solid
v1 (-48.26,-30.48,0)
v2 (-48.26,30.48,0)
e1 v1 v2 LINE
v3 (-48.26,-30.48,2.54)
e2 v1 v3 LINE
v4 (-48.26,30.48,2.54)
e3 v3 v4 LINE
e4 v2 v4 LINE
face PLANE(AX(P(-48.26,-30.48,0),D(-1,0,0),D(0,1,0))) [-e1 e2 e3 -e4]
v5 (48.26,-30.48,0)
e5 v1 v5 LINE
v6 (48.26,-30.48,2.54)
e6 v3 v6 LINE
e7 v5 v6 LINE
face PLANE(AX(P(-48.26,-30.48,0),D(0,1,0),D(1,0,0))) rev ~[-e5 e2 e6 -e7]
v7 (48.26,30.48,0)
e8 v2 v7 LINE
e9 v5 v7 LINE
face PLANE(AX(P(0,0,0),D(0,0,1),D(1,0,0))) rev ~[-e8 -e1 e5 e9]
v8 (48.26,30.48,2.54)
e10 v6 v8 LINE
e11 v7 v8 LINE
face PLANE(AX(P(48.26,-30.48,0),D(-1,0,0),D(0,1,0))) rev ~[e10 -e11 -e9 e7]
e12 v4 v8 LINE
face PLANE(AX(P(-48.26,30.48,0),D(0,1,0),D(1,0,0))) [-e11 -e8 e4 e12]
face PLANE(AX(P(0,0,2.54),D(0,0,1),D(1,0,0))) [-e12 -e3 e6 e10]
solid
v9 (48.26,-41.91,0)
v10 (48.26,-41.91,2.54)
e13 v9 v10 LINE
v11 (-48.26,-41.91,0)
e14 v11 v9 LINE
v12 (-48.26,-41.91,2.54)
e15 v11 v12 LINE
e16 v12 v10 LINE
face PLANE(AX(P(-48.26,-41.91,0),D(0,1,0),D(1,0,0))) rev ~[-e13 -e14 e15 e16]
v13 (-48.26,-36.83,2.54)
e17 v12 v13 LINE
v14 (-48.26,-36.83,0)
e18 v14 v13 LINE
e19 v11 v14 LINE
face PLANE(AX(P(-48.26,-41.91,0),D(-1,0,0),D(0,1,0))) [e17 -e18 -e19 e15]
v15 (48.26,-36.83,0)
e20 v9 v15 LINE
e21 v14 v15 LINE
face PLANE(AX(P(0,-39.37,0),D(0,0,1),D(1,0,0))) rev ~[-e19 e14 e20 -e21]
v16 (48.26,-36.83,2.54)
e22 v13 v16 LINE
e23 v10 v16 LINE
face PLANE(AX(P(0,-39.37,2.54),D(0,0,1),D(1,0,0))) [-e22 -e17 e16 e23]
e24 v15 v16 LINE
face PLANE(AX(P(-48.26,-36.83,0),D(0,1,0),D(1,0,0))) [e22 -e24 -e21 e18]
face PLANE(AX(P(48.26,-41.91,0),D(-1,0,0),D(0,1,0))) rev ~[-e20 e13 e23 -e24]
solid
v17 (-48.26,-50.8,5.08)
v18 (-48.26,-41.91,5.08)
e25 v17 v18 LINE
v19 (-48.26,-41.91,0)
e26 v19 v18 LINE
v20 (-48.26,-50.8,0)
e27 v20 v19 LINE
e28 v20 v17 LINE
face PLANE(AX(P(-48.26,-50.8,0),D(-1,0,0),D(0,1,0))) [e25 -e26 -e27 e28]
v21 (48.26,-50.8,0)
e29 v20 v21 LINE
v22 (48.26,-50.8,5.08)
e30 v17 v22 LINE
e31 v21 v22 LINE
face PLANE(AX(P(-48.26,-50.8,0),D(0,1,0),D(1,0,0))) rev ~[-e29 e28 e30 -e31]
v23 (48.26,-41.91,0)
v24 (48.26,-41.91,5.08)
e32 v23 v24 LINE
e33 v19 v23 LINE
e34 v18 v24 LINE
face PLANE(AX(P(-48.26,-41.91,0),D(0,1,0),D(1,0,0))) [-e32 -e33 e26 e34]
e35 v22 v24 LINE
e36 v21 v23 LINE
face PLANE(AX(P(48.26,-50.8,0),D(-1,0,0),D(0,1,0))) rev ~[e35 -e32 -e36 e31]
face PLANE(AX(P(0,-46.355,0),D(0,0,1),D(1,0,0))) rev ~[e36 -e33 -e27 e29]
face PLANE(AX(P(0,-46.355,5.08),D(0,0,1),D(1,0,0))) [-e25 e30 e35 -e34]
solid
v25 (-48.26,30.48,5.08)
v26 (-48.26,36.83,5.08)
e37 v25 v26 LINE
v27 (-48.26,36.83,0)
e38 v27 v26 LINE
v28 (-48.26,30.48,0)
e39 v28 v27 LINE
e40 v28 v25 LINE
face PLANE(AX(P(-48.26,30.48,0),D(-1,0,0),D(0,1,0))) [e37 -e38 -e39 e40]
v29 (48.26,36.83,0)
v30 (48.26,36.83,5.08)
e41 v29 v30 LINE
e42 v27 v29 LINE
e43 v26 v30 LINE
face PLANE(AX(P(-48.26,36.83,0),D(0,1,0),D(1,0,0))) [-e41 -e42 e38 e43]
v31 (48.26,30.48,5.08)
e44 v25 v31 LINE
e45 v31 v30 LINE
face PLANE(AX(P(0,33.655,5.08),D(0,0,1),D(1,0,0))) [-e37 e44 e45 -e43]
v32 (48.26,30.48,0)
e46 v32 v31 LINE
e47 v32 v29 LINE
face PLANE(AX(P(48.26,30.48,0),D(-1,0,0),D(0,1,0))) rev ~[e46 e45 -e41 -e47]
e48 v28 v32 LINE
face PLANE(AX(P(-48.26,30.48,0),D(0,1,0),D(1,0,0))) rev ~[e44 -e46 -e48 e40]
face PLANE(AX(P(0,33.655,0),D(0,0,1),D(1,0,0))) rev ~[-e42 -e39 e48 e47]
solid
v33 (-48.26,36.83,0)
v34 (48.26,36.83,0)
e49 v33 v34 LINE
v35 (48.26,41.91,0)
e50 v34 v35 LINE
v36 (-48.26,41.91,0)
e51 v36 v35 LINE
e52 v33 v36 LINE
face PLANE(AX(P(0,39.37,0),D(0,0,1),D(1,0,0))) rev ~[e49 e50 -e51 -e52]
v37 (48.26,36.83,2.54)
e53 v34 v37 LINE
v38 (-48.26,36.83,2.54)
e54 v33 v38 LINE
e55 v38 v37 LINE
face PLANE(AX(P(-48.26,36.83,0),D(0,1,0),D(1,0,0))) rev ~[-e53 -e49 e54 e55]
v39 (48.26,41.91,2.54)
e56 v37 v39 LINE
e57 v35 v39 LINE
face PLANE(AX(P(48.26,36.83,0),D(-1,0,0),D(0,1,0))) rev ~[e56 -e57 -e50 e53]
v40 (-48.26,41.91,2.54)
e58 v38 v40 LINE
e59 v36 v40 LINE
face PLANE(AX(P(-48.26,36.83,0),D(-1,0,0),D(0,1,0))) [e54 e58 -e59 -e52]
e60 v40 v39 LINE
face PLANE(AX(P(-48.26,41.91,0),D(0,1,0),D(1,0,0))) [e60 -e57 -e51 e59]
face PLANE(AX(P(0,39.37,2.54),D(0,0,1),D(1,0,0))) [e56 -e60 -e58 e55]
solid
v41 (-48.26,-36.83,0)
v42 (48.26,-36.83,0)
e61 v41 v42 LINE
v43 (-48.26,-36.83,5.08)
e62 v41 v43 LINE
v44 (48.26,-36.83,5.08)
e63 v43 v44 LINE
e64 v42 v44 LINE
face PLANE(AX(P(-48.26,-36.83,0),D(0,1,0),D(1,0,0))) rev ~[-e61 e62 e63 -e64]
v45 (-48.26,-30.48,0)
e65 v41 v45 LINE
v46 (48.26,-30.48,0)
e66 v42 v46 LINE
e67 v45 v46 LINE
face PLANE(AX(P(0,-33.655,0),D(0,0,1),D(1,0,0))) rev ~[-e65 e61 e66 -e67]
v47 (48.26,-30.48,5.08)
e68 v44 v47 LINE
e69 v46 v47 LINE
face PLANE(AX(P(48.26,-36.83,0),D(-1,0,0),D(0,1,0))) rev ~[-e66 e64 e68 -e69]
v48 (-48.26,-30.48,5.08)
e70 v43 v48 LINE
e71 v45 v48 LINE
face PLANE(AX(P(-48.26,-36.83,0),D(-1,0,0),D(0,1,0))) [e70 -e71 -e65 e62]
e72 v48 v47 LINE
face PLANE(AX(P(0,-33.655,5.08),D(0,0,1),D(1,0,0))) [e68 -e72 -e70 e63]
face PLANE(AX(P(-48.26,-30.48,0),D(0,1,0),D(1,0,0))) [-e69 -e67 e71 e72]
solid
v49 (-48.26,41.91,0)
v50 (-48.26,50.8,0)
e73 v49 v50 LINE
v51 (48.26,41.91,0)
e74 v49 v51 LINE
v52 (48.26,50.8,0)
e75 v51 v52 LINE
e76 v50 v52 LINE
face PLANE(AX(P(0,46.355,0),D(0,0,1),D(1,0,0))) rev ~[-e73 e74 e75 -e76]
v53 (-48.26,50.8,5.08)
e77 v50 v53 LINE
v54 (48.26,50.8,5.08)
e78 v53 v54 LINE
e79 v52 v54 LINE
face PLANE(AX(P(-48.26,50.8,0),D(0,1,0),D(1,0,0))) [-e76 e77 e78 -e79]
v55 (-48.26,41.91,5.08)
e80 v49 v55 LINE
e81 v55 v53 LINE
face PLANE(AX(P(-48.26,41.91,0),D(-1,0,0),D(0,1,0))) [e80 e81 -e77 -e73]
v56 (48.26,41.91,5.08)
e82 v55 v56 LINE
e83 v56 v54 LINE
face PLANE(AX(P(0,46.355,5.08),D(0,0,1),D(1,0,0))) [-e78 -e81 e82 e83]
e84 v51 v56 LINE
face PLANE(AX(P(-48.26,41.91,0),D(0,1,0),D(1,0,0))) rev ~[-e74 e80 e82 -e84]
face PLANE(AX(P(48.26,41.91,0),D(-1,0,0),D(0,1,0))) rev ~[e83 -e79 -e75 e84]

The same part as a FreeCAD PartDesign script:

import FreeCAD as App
import Part
import Sketcher
from FreeCAD import Vector
Q = App.Units.Quantity

doc = App.newDocument("Part")
body = doc.addObject("PartDesign::Body", "Body")
body.AllowCompound = True

# Sketch on XY plane
sketch1 = body.newObject("Sketcher::SketchObject", "Sketch")
sketch1.AttachmentSupport = (doc.getObject("XY_Plane"), [""])
sketch1.MapMode = "FlatFace"
sketch1.addGeometry([
    Part.LineSegment(Vector(-48, 51, 0), Vector(-48, 42, 0)),  # 0
    Part.LineSegment(Vector(-48, 42, 0), Vector(48, 42, 0)),  # 1
    Part.LineSegment(Vector(48, 42, 0), Vector(48, 51, 0)),  # 2
    Part.LineSegment(Vector(48, 51, 0), Vector(-48, 51, 0)),  # 3
    Part.LineSegment(Vector(-48, 37, 0), Vector(-48, 30, 0)),  # 4
    Part.LineSegment(Vector(-48, 30, 0), Vector(48, 30, 0)),  # 5
    Part.LineSegment(Vector(48, 30, 0), Vector(48, 37, 0)),  # 6
    Part.LineSegment(Vector(48, 37, 0), Vector(-48, 37, 0)),  # 7
    Part.LineSegment(Vector(-48, -42, 0), Vector(-48, -51, 0)),  # 8
    Part.LineSegment(Vector(-48, -51, 0), Vector(48, -51, 0)),  # 9
    Part.LineSegment(Vector(48, -51, 0), Vector(48, -42, 0)),  # 10
    Part.LineSegment(Vector(48, -42, 0), Vector(-48, -42, 0)),  # 11
    Part.LineSegment(Vector(-48, -30, 0), Vector(-48, -37, 0)),  # 12
    Part.LineSegment(Vector(-48, -37, 0), Vector(48, -37, 0)),  # 13
    Part.LineSegment(Vector(48, -37, 0), Vector(48, -30, 0)),  # 14
    Part.LineSegment(Vector(48, -30, 0), Vector(-48, -30, 0)),  # 15
], False)
sketch1.addConstraint([
    Sketcher.Constraint("Coincident", 0, 2, 1, 1),
    Sketcher.Constraint("Coincident", 1, 2, 2, 1),
    Sketcher.Constraint("Coincident", 2, 2, 3, 1),
    Sketcher.Constraint("Coincident", 3, 2, 0, 1),
    Sketcher.Constraint("Coincident", 4, 2, 5, 1),
    Sketcher.Constraint("Coincident", 5, 2, 6, 1),
    Sketcher.Constraint("Coincident", 6, 2, 7, 1),
    Sketcher.Constraint("Coincident", 7, 2, 4, 1),
    Sketcher.Constraint("Coincident", 8, 2, 9, 1),
    Sketcher.Constraint("Coincident", 9, 2, 10, 1),
    Sketcher.Constraint("Coincident", 10, 2, 11, 1),
    Sketcher.Constraint("Coincident", 11, 2, 8, 1),
    Sketcher.Constraint("Coincident", 12, 2, 13, 1),
    Sketcher.Constraint("Coincident", 13, 2, 14, 1),
    Sketcher.Constraint("Coincident", 14, 2, 15, 1),
    Sketcher.Constraint("Coincident", 15, 2, 12, 1),
    Sketcher.Constraint("Vertical", 0),
    Sketcher.Constraint("Horizontal", 1),
    Sketcher.Constraint("Vertical", 2),
    Sketcher.Constraint("Horizontal", 3),
    Sketcher.Constraint("Vertical", 4),
    Sketcher.Constraint("Horizontal", 5),
    Sketcher.Constraint("Vertical", 6),
    Sketcher.Constraint("Horizontal", 7),
    Sketcher.Constraint("Vertical", 8),
    Sketcher.Constraint("Horizontal", 9),
    Sketcher.Constraint("Vertical", 10),
    Sketcher.Constraint("Horizontal", 11),
    Sketcher.Constraint("Vertical", 12),
    Sketcher.Constraint("Horizontal", 13),
    Sketcher.Constraint("Vertical", 14),
    Sketcher.Constraint("Horizontal", 15),
    Sketcher.Constraint("Symmetric", 2, 2, 8, 2, -1, 1),
    Sketcher.Constraint("Symmetric", 0, 2, 10, 2, -1, 1),
    Sketcher.Constraint("Symmetric", 6, 2, 12, 2, -1, 1),
    Sketcher.Constraint("Symmetric", 4, 2, 14, 2, -1, 1),
    Sketcher.Constraint("Vertical", 3, 2, 4, 2),
    Sketcher.Constraint("Vertical", 2, 2, 5, 2),
    Sketcher.Constraint("Vertical", 7, 2, 8, 2),
    Sketcher.Constraint("DistanceX", 1, 1, 1, 2, Q("3.8 in")),
    Sketcher.Constraint("DistanceY", -1, 1, 2, 2, Q("2 in")),
    Sketcher.Constraint("DistanceY", 0, 2, 0, 1, Q("0.35 in")),
    Sketcher.Constraint("DistanceY", 4, 2, 4, 1, Q("0.25 in")),
    Sketcher.Constraint("DistanceY", -1, 1, 4, 2, Q("1.2 in")),
])
pad1 = body.newObject("PartDesign::Pad", "Pad")
pad1.Profile = sketch1
pad1.Length = Q("0.2 in")
body2 = doc.addObject("PartDesign::Body", "Body001")
body2.AllowCompound = True

# Sketch on XY plane
sketch2 = body2.newObject("Sketcher::SketchObject", "Sketch001")
sketch2.AttachmentSupport = (doc.getObject("XY_Plane001"), [""])
sketch2.MapMode = "FlatFace"
sketch2.addGeometry([
    Part.LineSegment(Vector(-48, 42, 0), Vector(-48, 37, 0)),  # 0
    Part.LineSegment(Vector(-48, 37, 0), Vector(48, 37, 0)),  # 1
    Part.LineSegment(Vector(48, 37, 0), Vector(48, 42, 0)),  # 2
    Part.LineSegment(Vector(48, 42, 0), Vector(-48, 42, 0)),  # 3
    Part.LineSegment(Vector(-48, -37, 0), Vector(-48, -42, 0)),  # 4
    Part.LineSegment(Vector(-48, -42, 0), Vector(48, -42, 0)),  # 5
    Part.LineSegment(Vector(48, -42, 0), Vector(48, -37, 0)),  # 6
    Part.LineSegment(Vector(48, -37, 0), Vector(-48, -37, 0)),  # 7
    Part.LineSegment(Vector(-48, 30, 0), Vector(-48, -30, 0)),  # 8
    Part.LineSegment(Vector(-48, -30, 0), Vector(48, -30, 0)),  # 9
    Part.LineSegment(Vector(48, -30, 0), Vector(48, 30, 0)),  # 10
    Part.LineSegment(Vector(48, 30, 0), Vector(-48, 30, 0)),  # 11
], False)
sketch2.addConstraint([
    Sketcher.Constraint("Coincident", 0, 2, 1, 1),
    Sketcher.Constraint("Coincident", 1, 2, 2, 1),
    Sketcher.Constraint("Coincident", 2, 2, 3, 1),
    Sketcher.Constraint("Coincident", 3, 2, 0, 1),
    Sketcher.Constraint("Coincident", 4, 2, 5, 1),
    Sketcher.Constraint("Coincident", 5, 2, 6, 1),
    Sketcher.Constraint("Coincident", 6, 2, 7, 1),
    Sketcher.Constraint("Coincident", 7, 2, 4, 1),
    Sketcher.Constraint("Coincident", 8, 2, 9, 1),
    Sketcher.Constraint("Coincident", 9, 2, 10, 1),
    Sketcher.Constraint("Coincident", 10, 2, 11, 1),
    Sketcher.Constraint("Coincident", 11, 2, 8, 1),
    Sketcher.Constraint("Vertical", 0),
    Sketcher.Constraint("Horizontal", 1),
    Sketcher.Constraint("Vertical", 2),
    Sketcher.Constraint("Horizontal", 3),
    Sketcher.Constraint("Vertical", 4),
    Sketcher.Constraint("Horizontal", 5),
    Sketcher.Constraint("Vertical", 6),
    Sketcher.Constraint("Horizontal", 7),
    Sketcher.Constraint("Vertical", 8),
    Sketcher.Constraint("Horizontal", 9),
    Sketcher.Constraint("Vertical", 10),
    Sketcher.Constraint("Horizontal", 11),
    Sketcher.Constraint("Symmetric", 2, 2, 4, 2, -1, 1),
    Sketcher.Constraint("Symmetric", 0, 2, 6, 2, -1, 1),
    Sketcher.Constraint("Symmetric", 8, 2, 10, 2, -1, 1),
    Sketcher.Constraint("Vertical", 3, 2, 4, 2),
    Sketcher.Constraint("Vertical", 7, 2, 8, 2),
    Sketcher.Constraint("DistanceX", 1, 1, 1, 2, Q("3.8 in")),
    Sketcher.Constraint("DistanceY", 0, 2, 0, 1, Q("0.2 in")),
    Sketcher.Constraint("DistanceY", 8, 2, 8, 1, Q("2.4 in")),
    Sketcher.Constraint("DistanceY", 4, 2, 0, 2, Q("3.1 in")),
])
pad2 = body2.newObject("PartDesign::Pad", "Pad001")
pad2.Profile = sketch2
pad2.Length = Q("0.1 in")

doc.recompute()
